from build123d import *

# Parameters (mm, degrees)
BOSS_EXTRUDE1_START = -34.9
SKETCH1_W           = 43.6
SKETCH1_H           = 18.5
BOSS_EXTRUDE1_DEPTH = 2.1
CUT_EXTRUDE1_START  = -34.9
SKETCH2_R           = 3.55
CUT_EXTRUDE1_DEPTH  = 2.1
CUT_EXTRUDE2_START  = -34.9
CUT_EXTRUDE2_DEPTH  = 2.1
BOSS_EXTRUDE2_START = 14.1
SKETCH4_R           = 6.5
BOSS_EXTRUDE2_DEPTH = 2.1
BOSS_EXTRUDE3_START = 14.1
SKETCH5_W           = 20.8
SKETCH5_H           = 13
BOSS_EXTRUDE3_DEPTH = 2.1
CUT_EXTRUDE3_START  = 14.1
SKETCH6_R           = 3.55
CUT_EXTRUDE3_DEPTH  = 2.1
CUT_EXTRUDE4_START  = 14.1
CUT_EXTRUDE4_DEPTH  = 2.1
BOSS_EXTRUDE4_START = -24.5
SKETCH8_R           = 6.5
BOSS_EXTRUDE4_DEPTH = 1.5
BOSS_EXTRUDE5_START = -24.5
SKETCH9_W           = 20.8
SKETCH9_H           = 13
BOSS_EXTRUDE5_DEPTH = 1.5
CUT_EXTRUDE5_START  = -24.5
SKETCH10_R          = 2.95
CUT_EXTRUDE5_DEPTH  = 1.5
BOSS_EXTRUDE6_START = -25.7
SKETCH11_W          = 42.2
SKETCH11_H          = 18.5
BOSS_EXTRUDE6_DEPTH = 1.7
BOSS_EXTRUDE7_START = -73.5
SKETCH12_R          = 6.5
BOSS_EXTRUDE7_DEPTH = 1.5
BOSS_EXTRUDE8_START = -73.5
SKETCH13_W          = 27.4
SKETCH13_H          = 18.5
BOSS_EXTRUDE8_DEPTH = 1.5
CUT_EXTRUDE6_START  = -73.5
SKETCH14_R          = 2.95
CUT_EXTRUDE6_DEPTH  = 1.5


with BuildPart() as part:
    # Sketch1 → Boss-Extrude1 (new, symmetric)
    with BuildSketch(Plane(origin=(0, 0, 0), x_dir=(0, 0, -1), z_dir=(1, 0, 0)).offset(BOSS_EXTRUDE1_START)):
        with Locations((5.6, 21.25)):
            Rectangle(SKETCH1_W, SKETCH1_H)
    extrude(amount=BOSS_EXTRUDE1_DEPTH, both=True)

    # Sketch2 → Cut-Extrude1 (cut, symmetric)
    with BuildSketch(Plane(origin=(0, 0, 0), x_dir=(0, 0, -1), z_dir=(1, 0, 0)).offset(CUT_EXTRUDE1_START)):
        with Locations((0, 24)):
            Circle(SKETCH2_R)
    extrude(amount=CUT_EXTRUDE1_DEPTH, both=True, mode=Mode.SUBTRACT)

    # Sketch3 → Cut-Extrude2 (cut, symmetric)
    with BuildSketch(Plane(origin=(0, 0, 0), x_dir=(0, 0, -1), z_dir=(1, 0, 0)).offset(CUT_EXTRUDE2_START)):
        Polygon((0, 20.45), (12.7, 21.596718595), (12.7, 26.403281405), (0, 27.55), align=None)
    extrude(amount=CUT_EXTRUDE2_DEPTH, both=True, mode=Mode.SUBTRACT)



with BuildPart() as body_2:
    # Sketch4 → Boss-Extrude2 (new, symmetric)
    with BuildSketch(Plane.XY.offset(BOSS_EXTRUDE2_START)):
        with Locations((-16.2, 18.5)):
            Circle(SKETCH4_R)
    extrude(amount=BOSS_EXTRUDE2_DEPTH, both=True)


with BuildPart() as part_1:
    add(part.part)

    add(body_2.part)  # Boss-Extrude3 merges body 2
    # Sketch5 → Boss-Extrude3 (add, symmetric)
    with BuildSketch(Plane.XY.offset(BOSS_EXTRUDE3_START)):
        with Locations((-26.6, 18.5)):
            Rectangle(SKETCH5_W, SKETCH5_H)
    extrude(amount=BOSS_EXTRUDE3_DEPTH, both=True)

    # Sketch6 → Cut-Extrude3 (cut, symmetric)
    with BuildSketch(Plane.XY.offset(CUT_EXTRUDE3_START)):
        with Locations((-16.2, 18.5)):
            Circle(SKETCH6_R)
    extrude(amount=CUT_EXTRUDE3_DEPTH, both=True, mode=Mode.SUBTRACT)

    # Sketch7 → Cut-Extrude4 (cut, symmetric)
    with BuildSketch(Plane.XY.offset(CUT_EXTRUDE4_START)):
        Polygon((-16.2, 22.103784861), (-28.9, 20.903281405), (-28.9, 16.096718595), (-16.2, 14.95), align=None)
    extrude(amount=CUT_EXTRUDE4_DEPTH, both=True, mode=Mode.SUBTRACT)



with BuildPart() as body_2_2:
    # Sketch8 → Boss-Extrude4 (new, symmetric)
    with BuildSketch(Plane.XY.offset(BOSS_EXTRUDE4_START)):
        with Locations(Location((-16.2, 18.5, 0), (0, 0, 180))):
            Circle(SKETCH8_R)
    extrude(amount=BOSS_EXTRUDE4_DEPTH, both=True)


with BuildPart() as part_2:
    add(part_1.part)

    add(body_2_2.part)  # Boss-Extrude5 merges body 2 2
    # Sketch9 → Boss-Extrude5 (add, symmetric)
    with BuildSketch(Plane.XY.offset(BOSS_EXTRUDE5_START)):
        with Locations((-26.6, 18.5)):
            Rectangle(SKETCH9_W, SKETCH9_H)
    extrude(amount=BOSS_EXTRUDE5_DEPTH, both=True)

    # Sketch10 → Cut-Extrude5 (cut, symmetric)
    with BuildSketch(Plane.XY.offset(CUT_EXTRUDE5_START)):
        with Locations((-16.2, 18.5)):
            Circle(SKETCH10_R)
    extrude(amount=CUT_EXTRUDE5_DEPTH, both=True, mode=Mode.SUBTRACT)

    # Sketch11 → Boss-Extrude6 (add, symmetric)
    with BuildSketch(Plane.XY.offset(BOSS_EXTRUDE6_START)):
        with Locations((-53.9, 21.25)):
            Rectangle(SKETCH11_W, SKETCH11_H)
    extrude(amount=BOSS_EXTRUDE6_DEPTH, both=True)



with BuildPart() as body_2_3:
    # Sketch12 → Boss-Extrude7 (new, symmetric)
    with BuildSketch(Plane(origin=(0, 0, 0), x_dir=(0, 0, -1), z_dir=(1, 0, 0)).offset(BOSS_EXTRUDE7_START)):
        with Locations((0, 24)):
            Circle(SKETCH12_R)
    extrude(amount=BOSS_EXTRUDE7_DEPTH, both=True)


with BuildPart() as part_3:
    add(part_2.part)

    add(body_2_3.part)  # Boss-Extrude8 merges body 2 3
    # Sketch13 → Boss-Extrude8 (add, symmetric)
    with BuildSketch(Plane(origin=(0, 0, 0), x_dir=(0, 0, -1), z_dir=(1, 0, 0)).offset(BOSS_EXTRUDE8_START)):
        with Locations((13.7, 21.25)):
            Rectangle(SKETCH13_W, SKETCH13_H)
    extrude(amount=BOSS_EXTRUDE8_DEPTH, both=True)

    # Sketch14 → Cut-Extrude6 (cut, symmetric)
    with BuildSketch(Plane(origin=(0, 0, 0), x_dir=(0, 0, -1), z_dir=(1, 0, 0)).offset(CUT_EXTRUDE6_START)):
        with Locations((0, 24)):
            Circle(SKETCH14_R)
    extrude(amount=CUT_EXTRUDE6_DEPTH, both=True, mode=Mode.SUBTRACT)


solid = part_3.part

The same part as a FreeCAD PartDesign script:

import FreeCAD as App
import Part
import Sketcher
Q = App.Units.Quantity


def add_polygon(sketch, points):
    """Adds a closed chain of lines whose ends are joined by coincident constraints."""
    first, n = sketch.GeometryCount, len(points)
    for a, b in zip(points, points[1:] + points[:1]):
        sketch.addGeometry(Part.LineSegment(App.Vector(*a, 0), App.Vector(*b, 0)), False)
    for i in range(n):
        sketch.addConstraint(Sketcher.Constraint("Coincident", first + i, 2, first + (i + 1) % n, 1))

doc = App.newDocument("Part")
body = doc.addObject("PartDesign::Body", "Body")

# Sketch on YZ plane
sketch1 = body.newObject("Sketcher::SketchObject", "Sketch")
sketch1.AttachmentSupport = (doc.getObject("YZ_Plane"), [""])
sketch1.MapMode = "FlatFace"
sketch1.AttachmentOffset = App.Placement(App.Vector(0, 0, -34.9), App.Rotation())
add_polygon(sketch1, [(30, 16), (12, 16), (12, -27), (30, -27)])  # lines 0-3
sketch1.addConstraint([
    Sketcher.Constraint("Horizontal", 0),
    Sketcher.Constraint("Vertical", 1),
    Sketcher.Constraint("Horizontal", 2),
    Sketcher.Constraint("Vertical", 3),
    Sketcher.Constraint("DistanceX", 0, 2, 0, 1, 18.5),
    Sketcher.Constraint("DistanceY", 1, 2, 1, 1, 43.6),
    Sketcher.Constraint("DistanceX", -1, 1, 0, 2, 12.0),
    Sketcher.Constraint("DistanceY", -1, 1, 0, 2, 16.2),
])
pad1 = body.newObject("PartDesign::Pad", "Pad")
pad1.Profile = sketch1
pad1.Length = 4.2
pad1.Midplane = True

# Sketch on YZ plane
sketch2 = body.newObject("Sketcher::SketchObject", "Sketch001")
sketch2.AttachmentSupport = (doc.getObject("YZ_Plane"), [""])
sketch2.MapMode = "FlatFace"
sketch2.AttachmentOffset = App.Placement(App.Vector(0, 0, -34.9), App.Rotation())
sketch2.addGeometry(Part.Circle(App.Vector(24, 0, 0), App.Vector(0, 0, 1), 3.5), False)
sketch2.addConstraint([
    Sketcher.Constraint("PointOnObject", 0, 3, -1),
    Sketcher.Constraint("Diameter", 0, 7.1),
    Sketcher.Constraint("DistanceX", -1, 1, 0, 3, 24.0),
])
pocket1 = body.newObject("PartDesign::Pocket", "Pocket")
pocket1.Profile = sketch2
pocket1.Length = 4.2
pocket1.Midplane = True

# Sketch on YZ plane
sketch3 = body.newObject("Sketcher::SketchObject", "Sketch002")
sketch3.AttachmentSupport = (doc.getObject("YZ_Plane"), [""])
sketch3.MapMode = "FlatFace"
sketch3.AttachmentOffset = App.Placement(App.Vector(0, 0, -34.9), App.Rotation())
add_polygon(sketch3, [(20.4, 0), (21.6, -12.7), (26.4, -12.7), (27.6, 0)])  # lines 0-3
sketch3.addConstraint([
    Sketcher.Constraint("Horizontal", 1),
    Sketcher.Constraint("Horizontal", 3),
    Sketcher.Constraint("PointOnObject", 2, 2, -1),
    Sketcher.Constraint("Equal", 0, 2),
    Sketcher.Constraint("DistanceX", 3, 2, 3, 1, 7.1),
    Sketcher.Constraint("DistanceY", 0, 2, -1, 1, 12.7),
    Sketcher.Constraint("DistanceX", -1, 1, 2, 2, 27.55),
    Sketcher.Constraint("DistanceX", 1, 1, 1, 2, 4.806563),
])
pocket2 = body.newObject("PartDesign::Pocket", "Pocket001")
pocket2.Profile = sketch3
pocket2.Length = 4.2
pocket2.Midplane = True
body2 = doc.addObject("PartDesign::Body", "Body001")

# Sketch on XY plane
sketch4 = body2.newObject("Sketcher::SketchObject", "Sketch003")
sketch4.AttachmentSupport = (doc.getObject("XY_Plane001"), [""])
sketch4.MapMode = "FlatFace"
sketch4.AttachmentOffset = App.Placement(App.Vector(0, 0, 14.1), App.Rotation())
sketch4.addGeometry(Part.Circle(App.Vector(-16, 18, 0), App.Vector(0, 0, 1), 6), False)
sketch4.addConstraint([
    Sketcher.Constraint("Diameter", 0, 13.0),
    Sketcher.Constraint("DistanceX", 0, 3, -1, 1, 16.2),
    Sketcher.Constraint("DistanceY", -1, 1, 0, 3, 18.5),
])
pad2 = body2.newObject("PartDesign::Pad", "Pad001")
pad2.Profile = sketch4
pad2.Length = 4.2
pad2.Midplane = True
body.AllowCompound = True
doc.recompute()

boolean = body.newObject("PartDesign::Boolean", "Boolean")
boolean.Type = "Fuse"
boolean.addObjects([body2])

# Sketch on XY plane
sketch5 = body.newObject("Sketcher::SketchObject", "Sketch004")
sketch5.AttachmentSupport = (doc.getObject("XY_Plane"), [""])
sketch5.MapMode = "FlatFace"
sketch5.AttachmentOffset = App.Placement(App.Vector(0, 0, 14.1), App.Rotation())
add_polygon(sketch5, [(-37, 25), (-37, 12), (-16, 12), (-16, 25)])  # lines 0-3
sketch5.addConstraint([
    Sketcher.Constraint("Vertical", 0),
    Sketcher.Constraint("Horizontal", 1),
    Sketcher.Constraint("Vertical", 2),
    Sketcher.Constraint("Horizontal", 3),
    Sketcher.Constraint("DistanceY", 0, 2, 0, 1, 13.0),
    Sketcher.Constraint("DistanceX", 1, 1, 1, 2, 20.8),
    Sketcher.Constraint("DistanceX", 0, 2, -1, 1, 37.0),
    Sketcher.Constraint("DistanceY", -1, 1, 0, 2, 12.0),
])
pad3 = body.newObject("PartDesign::Pad", "Pad002")
pad3.Profile = sketch5
pad3.Length = 4.2
pad3.Midplane = True

# Sketch on XY plane
sketch6 = body.newObject("Sketcher::SketchObject", "Sketch005")
sketch6.AttachmentSupport = (doc.getObject("XY_Plane"), [""])
sketch6.MapMode = "FlatFace"
sketch6.AttachmentOffset = App.Placement(App.Vector(0, 0, 14.1), App.Rotation())
sketch6.addGeometry(Part.Circle(App.Vector(-16.2, 18.5, 0), App.Vector(0, 0, 1), 3.5), False)
sketch6.addConstraint([
    Sketcher.Constraint("Diameter", 0, 7.1),
    Sketcher.Constraint("DistanceX", 0, 3, -1, 1, 16.2),
    Sketcher.Constraint("DistanceY", -1, 1, 0, 3, 18.5),
])
pocket3 = body.newObject("PartDesign::Pocket", "Pocket002")
pocket3.Profile = sketch6
pocket3.Length = 4.2
pocket3.Midplane = True

# Sketch on XY plane
sketch7 = body.newObject("Sketcher::SketchObject", "Sketch006")
sketch7.AttachmentSupport = (doc.getObject("XY_Plane"), [""])
sketch7.MapMode = "FlatFace"
sketch7.AttachmentOffset = App.Placement(App.Vector(0, 0, 14.1), App.Rotation())
add_polygon(sketch7, [(-16.2, 22.1), (-28.9, 20.9), (-28.9, 16.1), (-16.2, 14.9)])  # lines 0-3
sketch7.addConstraint([
    Sketcher.Constraint("Vertical", 1),
    Sketcher.Constraint("Vertical", 3),
    Sketcher.Constraint("Angle", 0, Q("-174.6 deg")),
    Sketcher.Constraint("DistanceX", 0, 2, -1, 1, 28.9),
    Sketcher.Constraint("DistanceX", 2, 2, -1, 1, 16.2),
    Sketcher.Constraint("DistanceY", -1, 1, 2, 2, 14.95),
    Sketcher.Constraint("DistanceY", 1, 2, 1, 1, 4.806563),
    Sketcher.Constraint("DistanceY", 3, 1, 3, 2, 7.153785),
])
pocket4 = body.newObject("PartDesign::Pocket", "Pocket003")
pocket4.Profile = sketch7
pocket4.Length = 4.2
pocket4.Midplane = True
body3 = doc.addObject("PartDesign::Body", "Body002")

# Sketch on XY plane
sketch8 = body3.newObject("Sketcher::SketchObject", "Sketch007")
sketch8.AttachmentSupport = (doc.getObject("XY_Plane002"), [""])
sketch8.MapMode = "FlatFace"
sketch8.AttachmentOffset = App.Placement(App.Vector(0, 0, -24.5), App.Rotation())
sketch8.addGeometry(Part.Circle(App.Vector(-16, 18, 0), App.Vector(0, 0, 1), 6), False)
sketch8.addConstraint([
    Sketcher.Constraint("Diameter", 0, 13.0),
    Sketcher.Constraint("DistanceX", 0, 3, -1, 1, 16.2),
    Sketcher.Constraint("DistanceY", -1, 1, 0, 3, 18.5),
])
pad4 = body3.newObject("PartDesign::Pad", "Pad003")
pad4.Profile = sketch8
pad4.Length = 3
pad4.Midplane = True
body.AllowCompound = True
doc.recompute()

boolean2 = body.newObject("PartDesign::Boolean", "Boolean001")
boolean2.Type = "Fuse"
boolean2.addObjects([body3])

# Sketch on XY plane
sketch9 = body.newObject("Sketcher::SketchObject", "Sketch008")
sketch9.AttachmentSupport = (doc.getObject("XY_Plane"), [""])
sketch9.MapMode = "FlatFace"
sketch9.AttachmentOffset = App.Placement(App.Vector(0, 0, -24.5), App.Rotation())
add_polygon(sketch9, [(-37, 25), (-37, 12), (-16, 12), (-16, 25)])  # lines 0-3
sketch9.addConstraint([
    Sketcher.Constraint("Vertical", 0),
    Sketcher.Constraint("Horizontal", 1),
    Sketcher.Constraint("Vertical", 2),
    Sketcher.Constraint("Horizontal", 3),
    Sketcher.Constraint("DistanceY", 0, 2, 0, 1, 13.0),
    Sketcher.Constraint("DistanceX", 1, 1, 1, 2, 20.8),
    Sketcher.Constraint("DistanceX", 0, 2, -1, 1, 37.0),
    Sketcher.Constraint("DistanceY", -1, 1, 0, 2, 12.0),
])
pad5 = body.newObject("PartDesign::Pad", "Pad004")
pad5.Profile = sketch9
pad5.Length = 3
pad5.Midplane = True

# Sketch on XY plane
sketch10 = body.newObject("Sketcher::SketchObject", "Sketch009")
sketch10.AttachmentSupport = (doc.getObject("XY_Plane"), [""])
sketch10.MapMode = "FlatFace"
sketch10.AttachmentOffset = App.Placement(App.Vector(0, 0, -24.5), App.Rotation())
sketch10.addGeometry(Part.Circle(App.Vector(-16.2, 18.5, 0), App.Vector(0, 0, 1), 3), False)
sketch10.addConstraint([
    Sketcher.Constraint("Diameter", 0, 5.9),
    Sketcher.Constraint("DistanceX", 0, 3, -1, 1, 16.2),
    Sketcher.Constraint("DistanceY", -1, 1, 0, 3, 18.5),
])
pocket5 = body.newObject("PartDesign::Pocket", "Pocket004")
pocket5.Profile = sketch10
pocket5.Length = 3
pocket5.Midplane = True

# Sketch on XY plane
sketch11 = body.newObject("Sketcher::SketchObject", "Sketch010")
sketch11.AttachmentSupport = (doc.getObject("XY_Plane"), [""])
sketch11.MapMode = "FlatFace"
sketch11.AttachmentOffset = App.Placement(App.Vector(0, 0, -25.7), App.Rotation())
add_polygon(sketch11, [(-75, 30), (-75, 12), (-33, 12), (-33, 30)])  # lines 0-3
sketch11.addConstraint([
    Sketcher.Constraint("Vertical", 0),
    Sketcher.Constraint("Horizontal", 1),
    Sketcher.Constraint("Vertical", 2),
    Sketcher.Constraint("Horizontal", 3),
    Sketcher.Constraint("DistanceX", 1, 1, 1, 2, 42.2),
    Sketcher.Constraint("DistanceY", 0, 2, 0, 1, 18.5),
    Sketcher.Constraint("DistanceX", 0, 2, -1, 1, 75.0),
    Sketcher.Constraint("DistanceY", -1, 1, 0, 2, 12.0),
])
pad6 = body.newObject("PartDesign::Pad", "Pad005")
pad6.Profile = sketch11
pad6.Length = 3.4
pad6.Midplane = True
body4 = doc.addObject("PartDesign::Body", "Body003")

# Sketch on YZ plane
sketch12 = body4.newObject("Sketcher::SketchObject", "Sketch011")
sketch12.AttachmentSupport = (doc.getObject("YZ_Plane003"), [""])
sketch12.MapMode = "FlatFace"
sketch12.AttachmentOffset = App.Placement(App.Vector(0, 0, -73.5), App.Rotation())
sketch12.addGeometry(Part.Circle(App.Vector(24, 0, 0), App.Vector(0, 0, 1), 6), False)
sketch12.addConstraint([
    Sketcher.Constraint("PointOnObject", 0, 3, -1),
    Sketcher.Constraint("Diameter", 0, 13.0),
    Sketcher.Constraint("DistanceX", -1, 1, 0, 3, 24.0),
])
pad7 = body4.newObject("PartDesign::Pad", "Pad006")
pad7.Profile = sketch12
pad7.Length = 3
pad7.Midplane = True
body.AllowCompound = True
doc.recompute()

boolean3 = body.newObject("PartDesign::Boolean", "Boolean002")
boolean3.Type = "Fuse"
boolean3.addObjects([body4])

# Sketch on YZ plane
sketch13 = body.newObject("Sketcher::SketchObject", "Sketch012")
sketch13.AttachmentSupport = (doc.getObject("YZ_Plane"), [""])
sketch13.MapMode = "FlatFace"
sketch13.AttachmentOffset = App.Placement(App.Vector(0, 0, -73.5), App.Rotation())
add_polygon(sketch13, [(30, 0), (12, 0), (12, -27), (30, -27)])  # lines 0-3
sketch13.addConstraint([
    Sketcher.Constraint("Horizontal", 0),
    Sketcher.Constraint("Vertical", 1),
    Sketcher.Constraint("Horizontal", 2),
    Sketcher.Constraint("Vertical", 3),
    Sketcher.Constraint("PointOnObject", 0, 2, -1),
    Sketcher.Constraint("DistanceX", 0, 2, 0, 1, 18.5),
    Sketcher.Constraint("DistanceY", 1, 2, 1, 1, 27.4),
    Sketcher.Constraint("DistanceX", -1, 1, 0, 2, 12.0),
])
pad8 = body.newObject("PartDesign::Pad", "Pad007")
pad8.Profile = sketch13
pad8.Length = 3
pad8.Midplane = True

# Sketch on YZ plane
sketch14 = body.newObject("Sketcher::SketchObject", "Sketch013")
sketch14.AttachmentSupport = (doc.getObject("YZ_Plane"), [""])
sketch14.MapMode = "FlatFace"
sketch14.AttachmentOffset = App.Placement(App.Vector(0, 0, -73.5), App.Rotation())
sketch14.addGeometry(Part.Circle(App.Vector(24, 0, 0), App.Vector(0, 0, 1), 3), False)
sketch14.addConstraint([
    Sketcher.Constraint("PointOnObject", 0, 3, -1),
    Sketcher.Constraint("Diameter", 0, 5.9),
    Sketcher.Constraint("DistanceX", -1, 1, 0, 3, 24.0),
])
pocket6 = body.newObject("PartDesign::Pocket", "Pocket005")
pocket6.Profile = sketch14
pocket6.Length = 3
pocket6.Midplane = True

doc.recompute()
